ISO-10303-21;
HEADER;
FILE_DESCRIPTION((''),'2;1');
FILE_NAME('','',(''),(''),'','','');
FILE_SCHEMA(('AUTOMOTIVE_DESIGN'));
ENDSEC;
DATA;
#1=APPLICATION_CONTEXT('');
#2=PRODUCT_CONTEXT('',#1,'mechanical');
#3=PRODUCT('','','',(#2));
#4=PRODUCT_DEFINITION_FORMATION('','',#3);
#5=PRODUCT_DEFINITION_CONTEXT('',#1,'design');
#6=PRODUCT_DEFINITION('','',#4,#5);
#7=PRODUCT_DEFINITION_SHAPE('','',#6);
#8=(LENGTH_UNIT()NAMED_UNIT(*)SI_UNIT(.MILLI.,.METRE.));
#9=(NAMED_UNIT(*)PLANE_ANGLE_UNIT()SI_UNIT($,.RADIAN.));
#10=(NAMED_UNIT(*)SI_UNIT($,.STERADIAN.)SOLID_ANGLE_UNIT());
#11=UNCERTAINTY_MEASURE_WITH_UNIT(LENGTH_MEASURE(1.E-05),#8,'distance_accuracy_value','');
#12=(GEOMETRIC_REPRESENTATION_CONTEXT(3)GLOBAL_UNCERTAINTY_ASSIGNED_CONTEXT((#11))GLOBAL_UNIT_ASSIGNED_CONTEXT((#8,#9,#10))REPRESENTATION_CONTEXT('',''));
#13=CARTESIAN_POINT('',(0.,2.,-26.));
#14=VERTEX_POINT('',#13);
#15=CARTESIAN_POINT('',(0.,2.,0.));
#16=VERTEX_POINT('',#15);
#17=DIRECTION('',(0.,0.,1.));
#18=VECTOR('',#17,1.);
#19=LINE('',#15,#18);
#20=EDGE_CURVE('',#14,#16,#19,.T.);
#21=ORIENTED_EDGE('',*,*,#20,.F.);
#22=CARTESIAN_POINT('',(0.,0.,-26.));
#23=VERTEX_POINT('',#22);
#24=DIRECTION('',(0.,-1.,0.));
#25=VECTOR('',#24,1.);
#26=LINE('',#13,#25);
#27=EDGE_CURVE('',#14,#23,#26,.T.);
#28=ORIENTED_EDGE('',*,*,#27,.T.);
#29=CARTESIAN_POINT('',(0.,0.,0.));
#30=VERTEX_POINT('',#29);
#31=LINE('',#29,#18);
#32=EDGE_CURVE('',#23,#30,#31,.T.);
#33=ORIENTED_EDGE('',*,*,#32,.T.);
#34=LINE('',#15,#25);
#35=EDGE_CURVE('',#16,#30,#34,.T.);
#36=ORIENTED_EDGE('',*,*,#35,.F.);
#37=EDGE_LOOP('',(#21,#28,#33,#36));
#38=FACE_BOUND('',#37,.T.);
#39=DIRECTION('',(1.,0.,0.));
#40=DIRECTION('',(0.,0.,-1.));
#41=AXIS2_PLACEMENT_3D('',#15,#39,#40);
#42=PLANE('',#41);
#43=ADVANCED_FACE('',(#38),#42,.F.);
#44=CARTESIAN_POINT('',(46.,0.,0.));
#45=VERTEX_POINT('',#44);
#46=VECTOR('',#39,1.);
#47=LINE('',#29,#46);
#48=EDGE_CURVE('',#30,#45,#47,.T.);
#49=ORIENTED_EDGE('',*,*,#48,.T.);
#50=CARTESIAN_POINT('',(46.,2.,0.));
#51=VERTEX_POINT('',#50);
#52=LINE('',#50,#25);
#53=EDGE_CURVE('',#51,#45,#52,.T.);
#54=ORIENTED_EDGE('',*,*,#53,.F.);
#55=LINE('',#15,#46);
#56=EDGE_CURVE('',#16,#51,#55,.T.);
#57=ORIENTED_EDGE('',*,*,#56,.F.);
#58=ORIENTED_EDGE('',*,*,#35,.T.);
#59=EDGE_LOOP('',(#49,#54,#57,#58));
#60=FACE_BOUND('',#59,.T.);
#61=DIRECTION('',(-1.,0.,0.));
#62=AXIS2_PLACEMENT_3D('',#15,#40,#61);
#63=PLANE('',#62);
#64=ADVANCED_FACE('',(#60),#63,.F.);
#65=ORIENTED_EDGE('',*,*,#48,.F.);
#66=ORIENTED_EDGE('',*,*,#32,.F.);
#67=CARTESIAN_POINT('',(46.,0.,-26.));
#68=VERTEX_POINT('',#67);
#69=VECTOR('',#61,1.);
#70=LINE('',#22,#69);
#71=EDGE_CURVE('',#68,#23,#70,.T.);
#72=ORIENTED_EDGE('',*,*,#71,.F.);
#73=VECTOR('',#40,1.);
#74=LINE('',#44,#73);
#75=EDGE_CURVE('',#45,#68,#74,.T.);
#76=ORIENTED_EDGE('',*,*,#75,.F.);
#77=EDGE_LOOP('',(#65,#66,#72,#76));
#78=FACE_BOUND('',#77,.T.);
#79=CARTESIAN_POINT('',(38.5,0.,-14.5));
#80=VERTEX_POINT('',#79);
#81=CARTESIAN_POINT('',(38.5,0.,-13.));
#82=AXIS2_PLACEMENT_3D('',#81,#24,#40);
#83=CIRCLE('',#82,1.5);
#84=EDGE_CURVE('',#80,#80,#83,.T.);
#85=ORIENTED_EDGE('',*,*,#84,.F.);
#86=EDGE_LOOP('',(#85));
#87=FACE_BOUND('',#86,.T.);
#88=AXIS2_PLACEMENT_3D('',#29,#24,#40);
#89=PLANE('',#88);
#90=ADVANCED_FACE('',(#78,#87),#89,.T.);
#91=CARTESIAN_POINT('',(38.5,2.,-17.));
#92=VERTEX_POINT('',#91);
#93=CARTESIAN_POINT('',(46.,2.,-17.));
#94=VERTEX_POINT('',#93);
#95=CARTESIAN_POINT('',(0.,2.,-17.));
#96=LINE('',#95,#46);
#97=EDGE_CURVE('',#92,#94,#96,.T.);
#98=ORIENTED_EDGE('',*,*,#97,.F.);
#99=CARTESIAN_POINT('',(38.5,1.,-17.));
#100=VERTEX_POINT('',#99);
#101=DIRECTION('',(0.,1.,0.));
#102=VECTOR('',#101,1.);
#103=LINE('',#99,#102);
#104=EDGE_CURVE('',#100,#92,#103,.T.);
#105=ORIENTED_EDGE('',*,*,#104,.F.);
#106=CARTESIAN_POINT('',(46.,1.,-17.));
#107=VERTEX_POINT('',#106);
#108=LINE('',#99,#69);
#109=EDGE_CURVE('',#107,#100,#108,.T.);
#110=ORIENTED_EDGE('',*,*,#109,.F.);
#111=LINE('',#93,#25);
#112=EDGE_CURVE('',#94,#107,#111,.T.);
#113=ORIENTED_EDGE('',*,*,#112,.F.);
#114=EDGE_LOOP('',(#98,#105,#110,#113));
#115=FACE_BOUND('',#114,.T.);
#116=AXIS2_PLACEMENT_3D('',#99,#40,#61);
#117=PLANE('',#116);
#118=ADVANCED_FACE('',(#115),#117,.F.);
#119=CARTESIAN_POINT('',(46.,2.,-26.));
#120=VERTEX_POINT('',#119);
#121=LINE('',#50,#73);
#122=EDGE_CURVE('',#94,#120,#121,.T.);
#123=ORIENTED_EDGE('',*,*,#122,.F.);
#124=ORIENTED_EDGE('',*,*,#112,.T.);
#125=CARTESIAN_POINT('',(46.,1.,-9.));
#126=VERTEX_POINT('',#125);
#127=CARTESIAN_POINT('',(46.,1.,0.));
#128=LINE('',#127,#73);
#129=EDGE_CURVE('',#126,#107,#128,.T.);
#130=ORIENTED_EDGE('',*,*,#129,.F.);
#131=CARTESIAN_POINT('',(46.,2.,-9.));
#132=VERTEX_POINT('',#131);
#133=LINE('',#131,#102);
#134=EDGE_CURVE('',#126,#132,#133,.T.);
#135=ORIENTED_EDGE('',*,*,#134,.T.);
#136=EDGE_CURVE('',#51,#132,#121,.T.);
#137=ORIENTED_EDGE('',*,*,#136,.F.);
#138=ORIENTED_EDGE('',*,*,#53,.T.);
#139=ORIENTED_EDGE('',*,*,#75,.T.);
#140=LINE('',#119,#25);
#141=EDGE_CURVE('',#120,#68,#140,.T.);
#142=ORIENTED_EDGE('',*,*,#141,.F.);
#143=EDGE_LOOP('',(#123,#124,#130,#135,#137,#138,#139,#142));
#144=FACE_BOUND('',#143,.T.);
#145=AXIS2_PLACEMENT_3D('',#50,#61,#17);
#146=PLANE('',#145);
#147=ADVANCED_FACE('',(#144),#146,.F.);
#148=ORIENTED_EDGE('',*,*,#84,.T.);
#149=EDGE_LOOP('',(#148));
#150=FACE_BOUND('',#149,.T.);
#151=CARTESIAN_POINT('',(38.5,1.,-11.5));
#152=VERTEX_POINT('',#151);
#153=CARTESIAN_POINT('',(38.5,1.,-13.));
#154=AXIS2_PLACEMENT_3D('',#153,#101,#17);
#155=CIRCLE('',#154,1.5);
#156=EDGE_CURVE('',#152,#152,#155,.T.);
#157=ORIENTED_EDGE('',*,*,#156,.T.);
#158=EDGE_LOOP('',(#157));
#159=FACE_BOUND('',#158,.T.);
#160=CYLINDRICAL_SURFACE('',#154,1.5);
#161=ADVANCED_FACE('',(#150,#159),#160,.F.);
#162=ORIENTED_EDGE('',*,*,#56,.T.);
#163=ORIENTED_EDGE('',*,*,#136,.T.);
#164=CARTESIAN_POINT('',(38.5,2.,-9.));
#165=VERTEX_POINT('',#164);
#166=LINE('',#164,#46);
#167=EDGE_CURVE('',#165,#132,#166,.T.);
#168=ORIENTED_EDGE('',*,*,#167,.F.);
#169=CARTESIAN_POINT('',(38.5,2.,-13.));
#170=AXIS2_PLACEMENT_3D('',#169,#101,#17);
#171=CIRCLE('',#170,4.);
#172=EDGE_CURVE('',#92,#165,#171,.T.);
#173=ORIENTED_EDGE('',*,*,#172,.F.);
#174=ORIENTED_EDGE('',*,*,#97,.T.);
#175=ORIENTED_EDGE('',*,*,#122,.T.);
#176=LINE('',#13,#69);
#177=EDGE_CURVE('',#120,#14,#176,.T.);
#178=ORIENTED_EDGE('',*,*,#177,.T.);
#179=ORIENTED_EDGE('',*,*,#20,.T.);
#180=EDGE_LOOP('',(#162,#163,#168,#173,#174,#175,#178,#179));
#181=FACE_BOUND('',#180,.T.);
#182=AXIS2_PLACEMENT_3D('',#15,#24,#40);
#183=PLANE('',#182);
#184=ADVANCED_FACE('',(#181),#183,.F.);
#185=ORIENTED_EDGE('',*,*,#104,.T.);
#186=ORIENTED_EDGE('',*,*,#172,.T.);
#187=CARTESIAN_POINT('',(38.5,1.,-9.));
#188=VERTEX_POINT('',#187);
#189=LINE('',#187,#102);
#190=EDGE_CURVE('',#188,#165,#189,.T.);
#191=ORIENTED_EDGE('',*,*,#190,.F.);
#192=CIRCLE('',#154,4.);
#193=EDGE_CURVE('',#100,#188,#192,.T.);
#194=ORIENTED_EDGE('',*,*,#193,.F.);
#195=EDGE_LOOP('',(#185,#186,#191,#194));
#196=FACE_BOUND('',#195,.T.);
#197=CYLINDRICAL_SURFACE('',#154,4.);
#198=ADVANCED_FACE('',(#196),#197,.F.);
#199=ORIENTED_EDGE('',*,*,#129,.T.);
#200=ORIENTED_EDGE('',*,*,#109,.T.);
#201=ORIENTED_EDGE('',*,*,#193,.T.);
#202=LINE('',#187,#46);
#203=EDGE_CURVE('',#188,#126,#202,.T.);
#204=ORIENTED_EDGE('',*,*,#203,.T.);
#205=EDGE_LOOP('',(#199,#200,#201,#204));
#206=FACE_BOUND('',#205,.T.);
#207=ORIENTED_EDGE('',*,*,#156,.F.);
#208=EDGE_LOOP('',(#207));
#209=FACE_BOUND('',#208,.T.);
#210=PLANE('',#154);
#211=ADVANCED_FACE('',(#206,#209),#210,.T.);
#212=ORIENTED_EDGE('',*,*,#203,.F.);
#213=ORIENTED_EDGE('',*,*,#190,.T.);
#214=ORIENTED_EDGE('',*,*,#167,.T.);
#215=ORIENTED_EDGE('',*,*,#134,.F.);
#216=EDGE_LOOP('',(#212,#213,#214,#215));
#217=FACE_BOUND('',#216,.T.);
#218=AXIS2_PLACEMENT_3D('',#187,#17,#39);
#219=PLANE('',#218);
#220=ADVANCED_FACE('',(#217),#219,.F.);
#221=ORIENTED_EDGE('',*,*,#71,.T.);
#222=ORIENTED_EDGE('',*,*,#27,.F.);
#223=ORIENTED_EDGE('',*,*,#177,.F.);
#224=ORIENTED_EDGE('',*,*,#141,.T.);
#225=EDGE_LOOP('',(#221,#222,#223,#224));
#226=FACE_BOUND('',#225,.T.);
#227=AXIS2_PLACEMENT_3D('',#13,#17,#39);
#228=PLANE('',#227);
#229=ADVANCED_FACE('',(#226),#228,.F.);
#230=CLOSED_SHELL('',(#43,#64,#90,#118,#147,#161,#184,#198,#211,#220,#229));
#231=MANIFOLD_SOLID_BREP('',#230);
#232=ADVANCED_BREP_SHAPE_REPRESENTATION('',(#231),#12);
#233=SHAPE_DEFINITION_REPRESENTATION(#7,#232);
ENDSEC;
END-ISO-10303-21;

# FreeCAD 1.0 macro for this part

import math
import FreeCAD as App
import Part
import Sketcher
from FreeCAD import Vector


def add_polygon(sketch, points):
    """Adds a closed chain of lines whose ends are joined by coincident constraints."""
    first, n = sketch.GeometryCount, len(points)
    for a, b in zip(points, points[1:] + points[:1]):
        sketch.addGeometry(Part.LineSegment(App.Vector(*a, 0), App.Vector(*b, 0)), False)
    for i in range(n):
        sketch.addConstraint(Sketcher.Constraint("Coincident", first + i, 2, first + (i + 1) % n, 1))

doc = App.newDocument("Part")
body = doc.addObject("PartDesign::Body", "Body")

sketch1 = doc.addObject("Sketcher::SketchObject", "Sketch")
body.addObject(sketch1)
sketch1.AttachmentSupport = (doc.XZ_Plane, [""])
sketch1.MapMode = "FlatFace"
add_polygon(sketch1, [(0, -26), (0, 0), (46, 0), (46, -26)])
sketch1.addConstraint(Sketcher.Constraint("Vertical", 0))
sketch1.addConstraint(Sketcher.Constraint("Horizontal", 1))
sketch1.addConstraint(Sketcher.Constraint("Vertical", 2))
sketch1.addConstraint(Sketcher.Constraint("Horizontal", 3))
sketch1.addConstraint(Sketcher.Constraint("Coincident", 0, 2, -1, 1))
sketch1.addConstraint(Sketcher.Constraint("DistanceX", 1, 1, 1, 2, 46.0))
sketch1.addConstraint(Sketcher.Constraint("DistanceY", 0, 1, 0, 2, 26.0))
pad1 = doc.addObject("PartDesign::Pad", "Pad")
body.addObject(pad1)
pad1.Profile = sketch1
pad1.Length = 2
pad1.Reversed = True

sketch2 = doc.addObject("Sketcher::SketchObject", "Sketch001")
body.addObject(sketch2)
sketch2.AttachmentSupport = (doc.XZ_Plane, [""])
sketch2.MapMode = "FlatFace"
sketch2.AttachmentOffset = App.Placement(Vector(0, 0, -2), App.Rotation())
sketch2.addGeometry(Part.LineSegment(Vector(53.5, -17, 0), Vector(38.5, -17, 0)), False)
sketch2.addGeometry(Part.ArcOfCircle(Part.Circle(Vector(38.5, -13, 0), Vector(0, 0, 1), 4), math.radians(90), math.radians(270)), False)
sketch2.addGeometry(Part.LineSegment(Vector(38.5, -9, 0), Vector(53.5, -9, 0)), False)
sketch2.addGeometry(Part.ArcOfCircle(Part.Circle(Vector(53.5, -13, 0), Vector(0, 0, 1), 4), math.radians(-90), math.radians(90)), False)
sketch2.addConstraint(Sketcher.Constraint("Tangent", 0, 2, 1, 2))
sketch2.addConstraint(Sketcher.Constraint("Tangent", 1, 1, 2, 1))
sketch2.addConstraint(Sketcher.Constraint("Tangent", 2, 2, 3, 2))
sketch2.addConstraint(Sketcher.Constraint("Tangent", 3, 1, 0, 1))
sketch2.addConstraint(Sketcher.Constraint("Horizontal", 0))
sketch2.addConstraint(Sketcher.Constraint("Horizontal", 2))
sketch2.addConstraint(Sketcher.Constraint("Radius", 1, 4.0))
sketch2.addConstraint(Sketcher.Constraint("DistanceX", 0, 2, 0, 1, 15.0))
sketch2.addConstraint(Sketcher.Constraint("DistanceY", 1, 3, -1, 1, 13.0))
sketch2.addConstraint(Sketcher.Constraint("DistanceX", -1, 1, 1, 3, 38.5))
pocket1 = doc.addObject("PartDesign::Pocket", "Pocket")
body.addObject(pocket1)
pocket1.Profile = sketch2
pocket1.Length = 1
pocket1.Reversed = True

sketch3 = doc.addObject("Sketcher::SketchObject", "Sketch002")
body.addObject(sketch3)
sketch3.AttachmentSupport = (doc.XZ_Plane, [""])
sketch3.MapMode = "FlatFace"
sketch3.AttachmentOffset = App.Placement(Vector(0, 0, -1), App.Rotation())
sketch3.addGeometry(Part.Circle(Vector(38.5, -13, 0), Vector(0, 0, 1), 1.5), False)
sketch3.addConstraint(Sketcher.Constraint("Diameter", 0, 3.0))
sketch3.addConstraint(Sketcher.Constraint("DistanceY", 0, 3, -1, 1, 13.0))
sketch3.addConstraint(Sketcher.Constraint("DistanceX", -1, 1, 0, 3, 38.5))
doc.recompute()
hole = doc.addObject("PartDesign::Hole", "Hole")
body.addObject(hole)
hole.Profile = sketch3
hole.ThreadType = "None"
hole.Diameter = 3
hole.DepthType = "Dimension"
hole.Depth = 1
hole.DrillPoint = "Flat"
hole.Reversed = True

sketch4 = doc.addObject("Sketcher::SketchObject", "Sketch003")
body.addObject(sketch4)
sketch4.AttachmentSupport = (doc.XZ_Plane, [""])
sketch4.MapMode = "FlatFace"
sketch4.AttachmentOffset = App.Placement(Vector(0, 0, -32.144543), App.Rotation())
sketch4.addGeometry(Part.Circle(Vector(65.157898, 0, 0), Vector(0, 0, 1), 1.5), False)
sketch4.addConstraint(Sketcher.Constraint("PointOnObject", 0, 3, -1))
sketch4.addConstraint(Sketcher.Constraint("Diameter", 0, 3.0))
sketch4.addConstraint(Sketcher.Constraint("DistanceX", -1, 1, 0, 3, 65.157898))
doc.recompute()
hole2 = doc.addObject("PartDesign::Hole", "Hole001")
body.addObject(hole2)
hole2.Profile = sketch4
hole2.ThreadType = "None"
hole2.Diameter = 3
hole2.DepthType = "Dimension"
hole2.Depth = 1
hole2.DrillPoint = "Flat"
hole2.Reversed = True

doc.recompute()
